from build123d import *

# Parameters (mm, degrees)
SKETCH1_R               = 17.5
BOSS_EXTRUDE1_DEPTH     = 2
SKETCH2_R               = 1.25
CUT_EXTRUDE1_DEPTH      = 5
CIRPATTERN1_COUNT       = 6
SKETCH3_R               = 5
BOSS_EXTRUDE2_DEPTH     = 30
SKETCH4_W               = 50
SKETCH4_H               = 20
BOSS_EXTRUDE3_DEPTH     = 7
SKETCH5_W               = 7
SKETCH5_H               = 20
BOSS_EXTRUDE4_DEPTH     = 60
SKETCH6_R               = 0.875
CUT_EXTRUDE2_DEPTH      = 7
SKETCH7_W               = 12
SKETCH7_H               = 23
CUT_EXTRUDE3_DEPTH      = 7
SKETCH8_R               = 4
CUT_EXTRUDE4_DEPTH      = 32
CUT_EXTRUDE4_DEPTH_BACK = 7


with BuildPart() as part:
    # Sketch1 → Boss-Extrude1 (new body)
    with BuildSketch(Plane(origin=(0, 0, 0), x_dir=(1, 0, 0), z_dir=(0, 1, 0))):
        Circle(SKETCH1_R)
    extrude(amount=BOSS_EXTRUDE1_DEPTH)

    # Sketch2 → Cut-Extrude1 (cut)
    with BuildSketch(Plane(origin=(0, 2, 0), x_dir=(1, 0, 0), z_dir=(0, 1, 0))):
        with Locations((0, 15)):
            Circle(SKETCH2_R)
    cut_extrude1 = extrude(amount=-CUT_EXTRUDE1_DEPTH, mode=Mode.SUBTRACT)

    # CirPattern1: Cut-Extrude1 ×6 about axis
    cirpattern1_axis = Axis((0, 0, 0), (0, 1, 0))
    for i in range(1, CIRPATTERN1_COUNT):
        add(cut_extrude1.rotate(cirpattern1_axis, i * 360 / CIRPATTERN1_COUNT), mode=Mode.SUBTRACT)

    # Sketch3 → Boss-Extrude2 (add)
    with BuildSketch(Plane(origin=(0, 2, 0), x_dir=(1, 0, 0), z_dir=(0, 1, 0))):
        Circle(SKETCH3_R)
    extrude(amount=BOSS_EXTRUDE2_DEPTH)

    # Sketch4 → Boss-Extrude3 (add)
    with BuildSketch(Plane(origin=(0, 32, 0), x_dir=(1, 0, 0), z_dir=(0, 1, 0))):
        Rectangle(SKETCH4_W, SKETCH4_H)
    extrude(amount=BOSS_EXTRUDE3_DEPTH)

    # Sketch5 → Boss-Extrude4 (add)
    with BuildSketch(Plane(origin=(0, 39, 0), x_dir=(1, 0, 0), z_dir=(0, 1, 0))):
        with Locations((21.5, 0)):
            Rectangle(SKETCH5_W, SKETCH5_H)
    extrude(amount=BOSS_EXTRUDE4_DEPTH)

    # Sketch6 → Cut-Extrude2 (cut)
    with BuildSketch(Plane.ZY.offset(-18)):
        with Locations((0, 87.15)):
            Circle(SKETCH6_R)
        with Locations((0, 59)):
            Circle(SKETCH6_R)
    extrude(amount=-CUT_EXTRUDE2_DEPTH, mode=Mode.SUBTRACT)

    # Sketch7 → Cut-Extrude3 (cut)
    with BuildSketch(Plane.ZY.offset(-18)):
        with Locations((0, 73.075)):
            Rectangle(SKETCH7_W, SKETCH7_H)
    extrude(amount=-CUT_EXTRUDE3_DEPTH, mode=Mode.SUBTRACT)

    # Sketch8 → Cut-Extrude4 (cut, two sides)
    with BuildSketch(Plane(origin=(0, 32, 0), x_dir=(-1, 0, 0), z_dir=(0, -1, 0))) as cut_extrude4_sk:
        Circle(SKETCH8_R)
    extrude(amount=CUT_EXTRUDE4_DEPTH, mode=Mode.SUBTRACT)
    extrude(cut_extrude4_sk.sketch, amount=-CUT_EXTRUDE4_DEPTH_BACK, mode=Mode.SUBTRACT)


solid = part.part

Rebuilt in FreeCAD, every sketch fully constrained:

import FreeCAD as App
import Part
import Sketcher
from FreeCAD import Vector
Q = App.Units.Quantity


def add_polygon(sketch, points):
    """Adds a closed chain of lines whose ends are joined by coincident constraints."""
    first, n = sketch.GeometryCount, len(points)
    for a, b in zip(points, points[1:] + points[:1]):
        sketch.addGeometry(Part.LineSegment(App.Vector(*a, 0), App.Vector(*b, 0)), False)
    for i in range(n):
        sketch.addConstraint(Sketcher.Constraint("Coincident", first + i, 2, first + (i + 1) % n, 1))

doc = App.newDocument("Part")
body = doc.addObject("PartDesign::Body", "Body")

sketch1 = body.newObject("Sketcher::SketchObject", "Sketch")
sketch1.AttachmentSupport = (doc.getObject("XZ_Plane"), [""])
sketch1.MapMode = "FlatFace"
sketch1.addGeometry(Part.Circle(Vector(0, 0, 0), Vector(0, 0, 1), 17.5), False)
sketch1.addConstraint(Sketcher.Constraint("Coincident", 0, 3, -1, 1))
sketch1.addConstraint(Sketcher.Constraint("Diameter", 0, Q("35 mm")))
pad1 = body.newObject("PartDesign::Pad", "Pad")
pad1.Profile = sketch1
pad1.Length = 2
pad1.Reversed = True

sketch2 = body.newObject("Sketcher::SketchObject", "Sketch001")
sketch2.AttachmentSupport = (doc.getObject("XZ_Plane"), [""])
sketch2.MapMode = "FlatFace"
sketch2.AttachmentOffset = App.Placement(Vector(0, 0, -2), App.Rotation())
sketch2.addGeometry(Part.Circle(Vector(0, -15, 0), Vector(0, 0, 1), 1.25), False)
sketch2.addConstraint(Sketcher.Constraint("PointOnObject", 0, 3, -2))
sketch2.addConstraint(Sketcher.Constraint("Diameter", 0, Q("2.5 mm")))
sketch2.addConstraint(Sketcher.Constraint("DistanceY", 0, 3, -1, 1, Q("15 mm")))
pocket1 = body.newObject("PartDesign::Pocket", "Pocket")
pocket1.Profile = sketch2
pocket1.Length = 5
pocket1.Reversed = True
doc.recompute()

polarpattern = body.newObject("PartDesign::PolarPattern", "PolarPattern")
polarpattern.Originals = [pocket1]
polarpattern.Axis = (doc.getObject("Y_Axis"), [""])
polarpattern.Angle = 360
polarpattern.Occurrences = 6
body.Tip = polarpattern

sketch3 = body.newObject("Sketcher::SketchObject", "Sketch002")
sketch3.AttachmentSupport = (doc.getObject("XZ_Plane"), [""])
sketch3.MapMode = "FlatFace"
sketch3.AttachmentOffset = App.Placement(Vector(0, 0, -2), App.Rotation())
sketch3.addGeometry(Part.Circle(Vector(0, 0, 0), Vector(0, 0, 1), 5), False)
sketch3.addConstraint(Sketcher.Constraint("Coincident", 0, 3, -1, 1))
sketch3.addConstraint(Sketcher.Constraint("Diameter", 0, Q("10 mm")))
pad2 = body.newObject("PartDesign::Pad", "Pad001")
pad2.Profile = sketch3
pad2.Length = 30
pad2.Reversed = True

sketch4 = body.newObject("Sketcher::SketchObject", "Sketch003")
sketch4.AttachmentSupport = (doc.getObject("XZ_Plane"), [""])
sketch4.MapMode = "FlatFace"
sketch4.AttachmentOffset = App.Placement(Vector(0, 0, -32), App.Rotation())
add_polygon(sketch4, [(-25, -10), (-25, 10), (25, 10), (25, -10)])
sketch4.addConstraint(Sketcher.Constraint("Vertical", 0))
sketch4.addConstraint(Sketcher.Constraint("Horizontal", 1))
sketch4.addConstraint(Sketcher.Constraint("Vertical", 2))
sketch4.addConstraint(Sketcher.Constraint("Horizontal", 3))
sketch4.addConstraint(Sketcher.Constraint("Symmetric", 0, 2, 2, 2, -1, 1))
sketch4.addConstraint(Sketcher.Constraint("DistanceX", 1, 1, 1, 2, Q("50 mm")))
sketch4.addConstraint(Sketcher.Constraint("DistanceY", 0, 1, 0, 2, Q("20 mm")))
pad3 = body.newObject("PartDesign::Pad", "Pad002")
pad3.Profile = sketch4
pad3.Length = 7
pad3.Reversed = True

sketch5 = body.newObject("Sketcher::SketchObject", "Sketch004")
sketch5.AttachmentSupport = (doc.getObject("XZ_Plane"), [""])
sketch5.MapMode = "FlatFace"
sketch5.AttachmentOffset = App.Placement(Vector(0, 0, -39), App.Rotation())
add_polygon(sketch5, [(18, -10), (18, 10), (25, 10), (25, -10)])
sketch5.addConstraint(Sketcher.Constraint("Vertical", 0))
sketch5.addConstraint(Sketcher.Constraint("Horizontal", 1))
sketch5.addConstraint(Sketcher.Constraint("Vertical", 2))
sketch5.addConstraint(Sketcher.Constraint("Horizontal", 3))
sketch5.addConstraint(Sketcher.Constraint("DistanceX", 1, 1, 1, 2, Q("7 mm")))
sketch5.addConstraint(Sketcher.Constraint("DistanceY", 0, 1, 0, 2, Q("20 mm")))
sketch5.addConstraint(Sketcher.Constraint("DistanceX", -1, 1, 0, 2, Q("18 mm")))
sketch5.addConstraint(Sketcher.Constraint("DistanceY", -1, 1, 0, 2, Q("10 mm")))
pad4 = body.newObject("PartDesign::Pad", "Pad003")
pad4.Profile = sketch5
pad4.Length = 60
pad4.Reversed = True

sketch6 = body.newObject("Sketcher::SketchObject", "Sketch005")
sketch6.AttachmentSupport = (doc.getObject("YZ_Plane"), [""])
sketch6.MapMode = "FlatFace"
sketch6.AttachmentOffset = App.Placement(Vector(0, 0, 18), App.Rotation())
sketch6.addGeometry(Part.Circle(Vector(87.15, 0, 0), Vector(0, 0, 1), 0.875), False)
sketch6.addGeometry(Part.Circle(Vector(59, 0, 0), Vector(0, 0, 1), 0.875), False)
sketch6.addConstraint(Sketcher.Constraint("Equal", 0, 1))
sketch6.addConstraint(Sketcher.Constraint("PointOnObject", 0, 3, -1))
sketch6.addConstraint(Sketcher.Constraint("PointOnObject", 1, 3, -1))
sketch6.addConstraint(Sketcher.Constraint("Diameter", 0, Q("1.75 mm")))
sketch6.addConstraint(Sketcher.Constraint("DistanceX", -1, 1, 1, 3, Q("59 mm")))
sketch6.addConstraint(Sketcher.Constraint("DistanceX", -1, 1, 0, 3, Q("87.15 mm")))
pocket2 = body.newObject("PartDesign::Pocket", "Pocket001")
pocket2.Profile = sketch6
pocket2.Length = 7
pocket2.Reversed = True

sketch7 = body.newObject("Sketcher::SketchObject", "Sketch006")
sketch7.AttachmentSupport = (doc.getObject("YZ_Plane"), [""])
sketch7.MapMode = "FlatFace"
sketch7.AttachmentOffset = App.Placement(Vector(0, 0, 18), App.Rotation())
add_polygon(sketch7, [(84.575, -6), (61.575, -6), (61.575, 6), (84.575, 6)])
sketch7.addConstraint(Sketcher.Constraint("Horizontal", 0))
sketch7.addConstraint(Sketcher.Constraint("Vertical", 1))
sketch7.addConstraint(Sketcher.Constraint("Horizontal", 2))
sketch7.addConstraint(Sketcher.Constraint("Vertical", 3))
sketch7.addConstraint(Sketcher.Constraint("DistanceX", 0, 2, 0, 1, Q("23 mm")))
sketch7.addConstraint(Sketcher.Constraint("DistanceY", 1, 1, 1, 2, Q("12 mm")))
sketch7.addConstraint(Sketcher.Constraint("DistanceY", 0, 2, -1, 1, Q("6 mm")))
sketch7.addConstraint(Sketcher.Constraint("DistanceX", -1, 1, 0, 2, Q("61.575 mm")))
pocket3 = body.newObject("PartDesign::Pocket", "Pocket002")
pocket3.Profile = sketch7
pocket3.Length = 7
pocket3.Reversed = True

sketch8 = body.newObject("Sketcher::SketchObject", "Sketch007")
sketch8.AttachmentSupport = (doc.getObject("XZ_Plane"), [""])
sketch8.MapMode = "FlatFace"
sketch8.AttachmentOffset = App.Placement(Vector(0, 0, -32), App.Rotation())
sketch8.addGeometry(Part.Circle(Vector(0, 0, 0), Vector(0, 0, 1), 4), False)
sketch8.addConstraint(Sketcher.Constraint("Coincident", 0, 3, -1, 1))
sketch8.addConstraint(Sketcher.Constraint("Diameter", 0, Q("8 mm")))
pocket4 = body.newObject("PartDesign::Pocket", "Pocket003")
pocket4.Profile = sketch8
pocket4.Type = "ThroughAll"
pocket4.Midplane = True

doc.recompute()
